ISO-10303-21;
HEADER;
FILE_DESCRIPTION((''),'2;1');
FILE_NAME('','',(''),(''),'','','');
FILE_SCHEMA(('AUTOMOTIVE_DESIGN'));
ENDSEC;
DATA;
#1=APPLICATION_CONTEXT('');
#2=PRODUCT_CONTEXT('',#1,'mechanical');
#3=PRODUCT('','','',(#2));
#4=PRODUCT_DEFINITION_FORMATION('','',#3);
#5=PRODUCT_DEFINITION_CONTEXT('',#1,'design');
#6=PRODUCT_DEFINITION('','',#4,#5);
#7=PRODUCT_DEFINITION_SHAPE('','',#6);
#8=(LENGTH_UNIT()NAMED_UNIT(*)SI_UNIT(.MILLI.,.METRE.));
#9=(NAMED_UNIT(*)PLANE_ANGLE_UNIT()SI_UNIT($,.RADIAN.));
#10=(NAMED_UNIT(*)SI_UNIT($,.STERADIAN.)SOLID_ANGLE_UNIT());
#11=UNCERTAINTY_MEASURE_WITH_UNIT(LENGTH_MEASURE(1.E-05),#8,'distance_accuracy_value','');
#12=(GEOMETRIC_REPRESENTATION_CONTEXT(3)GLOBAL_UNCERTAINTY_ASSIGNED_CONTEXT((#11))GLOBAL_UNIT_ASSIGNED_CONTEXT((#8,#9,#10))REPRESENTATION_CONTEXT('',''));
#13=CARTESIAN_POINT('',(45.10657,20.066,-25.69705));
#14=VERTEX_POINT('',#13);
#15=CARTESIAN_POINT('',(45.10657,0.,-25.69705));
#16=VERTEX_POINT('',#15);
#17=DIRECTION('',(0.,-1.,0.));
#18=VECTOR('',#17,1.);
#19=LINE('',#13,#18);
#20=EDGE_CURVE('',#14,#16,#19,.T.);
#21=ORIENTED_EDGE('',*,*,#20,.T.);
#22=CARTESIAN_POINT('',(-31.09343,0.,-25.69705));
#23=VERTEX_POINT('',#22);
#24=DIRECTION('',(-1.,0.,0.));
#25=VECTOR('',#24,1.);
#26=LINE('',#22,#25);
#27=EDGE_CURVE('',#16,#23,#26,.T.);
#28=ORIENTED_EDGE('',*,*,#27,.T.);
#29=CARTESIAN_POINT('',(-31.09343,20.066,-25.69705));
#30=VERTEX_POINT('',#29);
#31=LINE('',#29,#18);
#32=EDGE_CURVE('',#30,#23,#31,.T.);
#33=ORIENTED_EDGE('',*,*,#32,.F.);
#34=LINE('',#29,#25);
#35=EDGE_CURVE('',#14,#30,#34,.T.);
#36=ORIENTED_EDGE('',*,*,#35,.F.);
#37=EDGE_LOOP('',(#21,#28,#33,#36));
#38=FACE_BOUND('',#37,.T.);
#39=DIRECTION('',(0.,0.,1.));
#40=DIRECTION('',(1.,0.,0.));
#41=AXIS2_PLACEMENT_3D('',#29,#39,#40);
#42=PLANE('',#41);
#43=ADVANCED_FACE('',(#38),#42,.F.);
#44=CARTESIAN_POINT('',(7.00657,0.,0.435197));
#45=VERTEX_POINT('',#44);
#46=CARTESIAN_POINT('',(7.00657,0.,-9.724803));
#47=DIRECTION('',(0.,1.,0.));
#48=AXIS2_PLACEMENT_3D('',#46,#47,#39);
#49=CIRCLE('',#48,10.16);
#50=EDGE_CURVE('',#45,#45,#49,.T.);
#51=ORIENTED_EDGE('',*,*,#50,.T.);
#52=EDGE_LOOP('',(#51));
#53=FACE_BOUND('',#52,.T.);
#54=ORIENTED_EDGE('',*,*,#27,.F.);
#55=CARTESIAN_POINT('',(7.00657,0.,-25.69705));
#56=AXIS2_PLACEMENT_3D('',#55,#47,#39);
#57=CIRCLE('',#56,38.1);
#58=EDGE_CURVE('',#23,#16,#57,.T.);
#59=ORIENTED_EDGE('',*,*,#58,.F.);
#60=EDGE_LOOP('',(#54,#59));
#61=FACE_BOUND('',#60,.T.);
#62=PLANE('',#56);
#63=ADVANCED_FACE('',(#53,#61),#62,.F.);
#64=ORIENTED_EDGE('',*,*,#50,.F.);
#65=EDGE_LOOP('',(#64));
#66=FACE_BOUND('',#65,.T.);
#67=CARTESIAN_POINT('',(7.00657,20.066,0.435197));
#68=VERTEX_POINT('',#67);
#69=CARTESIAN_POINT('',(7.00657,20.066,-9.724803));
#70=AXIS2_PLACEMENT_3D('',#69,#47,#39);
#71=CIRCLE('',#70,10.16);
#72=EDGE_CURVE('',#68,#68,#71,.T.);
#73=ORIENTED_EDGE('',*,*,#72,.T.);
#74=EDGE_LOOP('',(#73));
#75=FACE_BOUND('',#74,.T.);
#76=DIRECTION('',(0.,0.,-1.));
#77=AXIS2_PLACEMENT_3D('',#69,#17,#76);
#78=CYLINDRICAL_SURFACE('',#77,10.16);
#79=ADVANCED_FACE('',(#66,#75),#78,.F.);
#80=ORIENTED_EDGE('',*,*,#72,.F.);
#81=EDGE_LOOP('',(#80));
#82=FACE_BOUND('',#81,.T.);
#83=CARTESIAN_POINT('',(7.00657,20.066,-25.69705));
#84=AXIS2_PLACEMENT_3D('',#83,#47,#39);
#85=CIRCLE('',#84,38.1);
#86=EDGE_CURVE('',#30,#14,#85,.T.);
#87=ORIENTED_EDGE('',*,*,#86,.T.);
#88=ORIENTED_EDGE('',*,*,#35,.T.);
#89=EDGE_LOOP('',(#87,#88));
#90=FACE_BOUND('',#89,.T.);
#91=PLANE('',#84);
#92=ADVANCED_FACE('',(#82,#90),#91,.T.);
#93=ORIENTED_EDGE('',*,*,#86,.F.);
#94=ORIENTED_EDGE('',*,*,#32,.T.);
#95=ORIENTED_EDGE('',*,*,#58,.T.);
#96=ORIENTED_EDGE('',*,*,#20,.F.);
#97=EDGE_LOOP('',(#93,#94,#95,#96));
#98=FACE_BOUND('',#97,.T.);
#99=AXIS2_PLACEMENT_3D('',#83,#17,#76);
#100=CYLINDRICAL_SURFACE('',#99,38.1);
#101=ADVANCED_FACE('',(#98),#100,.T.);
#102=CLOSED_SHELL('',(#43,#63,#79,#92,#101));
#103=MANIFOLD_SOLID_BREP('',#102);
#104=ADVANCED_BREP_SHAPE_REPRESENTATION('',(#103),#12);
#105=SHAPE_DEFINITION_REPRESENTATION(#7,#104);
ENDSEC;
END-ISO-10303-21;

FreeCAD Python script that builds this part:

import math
import FreeCAD as App
import Part
import Sketcher
Q = App.Units.Quantity

doc = App.newDocument("Part")
body = doc.addObject("PartDesign::Body", "Body")

sketch1 = body.newObject("Sketcher::SketchObject", "Sketch")
sketch1.AttachmentSupport = (doc.getObject("XZ_Plane"), [""])
sketch1.MapMode = "FlatFace"
sketch1.addGeometry([
    Part.LineSegment(App.Vector(45, -26, 0), App.Vector(-31, -26, 0)),
    Part.ArcOfCircle(Part.Circle(App.Vector(7, -26, 0), App.Vector(0, 0, 1), 38), math.radians(0), math.radians(180)),
    Part.Circle(App.Vector(7, -10, 0), App.Vector(0, 0, 1), 10),
], False)
sketch1.addConstraint([
    Sketcher.Constraint("Coincident", 0, 1, 1, 1),
    Sketcher.Constraint("Coincident", 1, 2, 0, 2),
    Sketcher.Constraint("Horizontal", 0),
    Sketcher.Constraint("Horizontal", 1, 3, 0, 1),
    Sketcher.Constraint("Vertical", 1, 3, 2, 3),
    Sketcher.Constraint("Diameter", 2, Q("0.8 in")),
    Sketcher.Constraint("Radius", 1, Q("1.5 in")),
    Sketcher.Constraint("DistanceX", -1, 1, 1, 3, Q("7.00657 mm")),
    Sketcher.Constraint("DistanceY", 1, 3, -1, 1, Q("25.69705 mm")),
    Sketcher.Constraint("DistanceY", 2, 3, -1, 1, Q("9.724803 mm")),
])
pad1 = body.newObject("PartDesign::Pad", "Pad")
pad1.Profile = sketch1
pad1.Length = Q("0.79 in")
pad1.Reversed = True

doc.recompute()
